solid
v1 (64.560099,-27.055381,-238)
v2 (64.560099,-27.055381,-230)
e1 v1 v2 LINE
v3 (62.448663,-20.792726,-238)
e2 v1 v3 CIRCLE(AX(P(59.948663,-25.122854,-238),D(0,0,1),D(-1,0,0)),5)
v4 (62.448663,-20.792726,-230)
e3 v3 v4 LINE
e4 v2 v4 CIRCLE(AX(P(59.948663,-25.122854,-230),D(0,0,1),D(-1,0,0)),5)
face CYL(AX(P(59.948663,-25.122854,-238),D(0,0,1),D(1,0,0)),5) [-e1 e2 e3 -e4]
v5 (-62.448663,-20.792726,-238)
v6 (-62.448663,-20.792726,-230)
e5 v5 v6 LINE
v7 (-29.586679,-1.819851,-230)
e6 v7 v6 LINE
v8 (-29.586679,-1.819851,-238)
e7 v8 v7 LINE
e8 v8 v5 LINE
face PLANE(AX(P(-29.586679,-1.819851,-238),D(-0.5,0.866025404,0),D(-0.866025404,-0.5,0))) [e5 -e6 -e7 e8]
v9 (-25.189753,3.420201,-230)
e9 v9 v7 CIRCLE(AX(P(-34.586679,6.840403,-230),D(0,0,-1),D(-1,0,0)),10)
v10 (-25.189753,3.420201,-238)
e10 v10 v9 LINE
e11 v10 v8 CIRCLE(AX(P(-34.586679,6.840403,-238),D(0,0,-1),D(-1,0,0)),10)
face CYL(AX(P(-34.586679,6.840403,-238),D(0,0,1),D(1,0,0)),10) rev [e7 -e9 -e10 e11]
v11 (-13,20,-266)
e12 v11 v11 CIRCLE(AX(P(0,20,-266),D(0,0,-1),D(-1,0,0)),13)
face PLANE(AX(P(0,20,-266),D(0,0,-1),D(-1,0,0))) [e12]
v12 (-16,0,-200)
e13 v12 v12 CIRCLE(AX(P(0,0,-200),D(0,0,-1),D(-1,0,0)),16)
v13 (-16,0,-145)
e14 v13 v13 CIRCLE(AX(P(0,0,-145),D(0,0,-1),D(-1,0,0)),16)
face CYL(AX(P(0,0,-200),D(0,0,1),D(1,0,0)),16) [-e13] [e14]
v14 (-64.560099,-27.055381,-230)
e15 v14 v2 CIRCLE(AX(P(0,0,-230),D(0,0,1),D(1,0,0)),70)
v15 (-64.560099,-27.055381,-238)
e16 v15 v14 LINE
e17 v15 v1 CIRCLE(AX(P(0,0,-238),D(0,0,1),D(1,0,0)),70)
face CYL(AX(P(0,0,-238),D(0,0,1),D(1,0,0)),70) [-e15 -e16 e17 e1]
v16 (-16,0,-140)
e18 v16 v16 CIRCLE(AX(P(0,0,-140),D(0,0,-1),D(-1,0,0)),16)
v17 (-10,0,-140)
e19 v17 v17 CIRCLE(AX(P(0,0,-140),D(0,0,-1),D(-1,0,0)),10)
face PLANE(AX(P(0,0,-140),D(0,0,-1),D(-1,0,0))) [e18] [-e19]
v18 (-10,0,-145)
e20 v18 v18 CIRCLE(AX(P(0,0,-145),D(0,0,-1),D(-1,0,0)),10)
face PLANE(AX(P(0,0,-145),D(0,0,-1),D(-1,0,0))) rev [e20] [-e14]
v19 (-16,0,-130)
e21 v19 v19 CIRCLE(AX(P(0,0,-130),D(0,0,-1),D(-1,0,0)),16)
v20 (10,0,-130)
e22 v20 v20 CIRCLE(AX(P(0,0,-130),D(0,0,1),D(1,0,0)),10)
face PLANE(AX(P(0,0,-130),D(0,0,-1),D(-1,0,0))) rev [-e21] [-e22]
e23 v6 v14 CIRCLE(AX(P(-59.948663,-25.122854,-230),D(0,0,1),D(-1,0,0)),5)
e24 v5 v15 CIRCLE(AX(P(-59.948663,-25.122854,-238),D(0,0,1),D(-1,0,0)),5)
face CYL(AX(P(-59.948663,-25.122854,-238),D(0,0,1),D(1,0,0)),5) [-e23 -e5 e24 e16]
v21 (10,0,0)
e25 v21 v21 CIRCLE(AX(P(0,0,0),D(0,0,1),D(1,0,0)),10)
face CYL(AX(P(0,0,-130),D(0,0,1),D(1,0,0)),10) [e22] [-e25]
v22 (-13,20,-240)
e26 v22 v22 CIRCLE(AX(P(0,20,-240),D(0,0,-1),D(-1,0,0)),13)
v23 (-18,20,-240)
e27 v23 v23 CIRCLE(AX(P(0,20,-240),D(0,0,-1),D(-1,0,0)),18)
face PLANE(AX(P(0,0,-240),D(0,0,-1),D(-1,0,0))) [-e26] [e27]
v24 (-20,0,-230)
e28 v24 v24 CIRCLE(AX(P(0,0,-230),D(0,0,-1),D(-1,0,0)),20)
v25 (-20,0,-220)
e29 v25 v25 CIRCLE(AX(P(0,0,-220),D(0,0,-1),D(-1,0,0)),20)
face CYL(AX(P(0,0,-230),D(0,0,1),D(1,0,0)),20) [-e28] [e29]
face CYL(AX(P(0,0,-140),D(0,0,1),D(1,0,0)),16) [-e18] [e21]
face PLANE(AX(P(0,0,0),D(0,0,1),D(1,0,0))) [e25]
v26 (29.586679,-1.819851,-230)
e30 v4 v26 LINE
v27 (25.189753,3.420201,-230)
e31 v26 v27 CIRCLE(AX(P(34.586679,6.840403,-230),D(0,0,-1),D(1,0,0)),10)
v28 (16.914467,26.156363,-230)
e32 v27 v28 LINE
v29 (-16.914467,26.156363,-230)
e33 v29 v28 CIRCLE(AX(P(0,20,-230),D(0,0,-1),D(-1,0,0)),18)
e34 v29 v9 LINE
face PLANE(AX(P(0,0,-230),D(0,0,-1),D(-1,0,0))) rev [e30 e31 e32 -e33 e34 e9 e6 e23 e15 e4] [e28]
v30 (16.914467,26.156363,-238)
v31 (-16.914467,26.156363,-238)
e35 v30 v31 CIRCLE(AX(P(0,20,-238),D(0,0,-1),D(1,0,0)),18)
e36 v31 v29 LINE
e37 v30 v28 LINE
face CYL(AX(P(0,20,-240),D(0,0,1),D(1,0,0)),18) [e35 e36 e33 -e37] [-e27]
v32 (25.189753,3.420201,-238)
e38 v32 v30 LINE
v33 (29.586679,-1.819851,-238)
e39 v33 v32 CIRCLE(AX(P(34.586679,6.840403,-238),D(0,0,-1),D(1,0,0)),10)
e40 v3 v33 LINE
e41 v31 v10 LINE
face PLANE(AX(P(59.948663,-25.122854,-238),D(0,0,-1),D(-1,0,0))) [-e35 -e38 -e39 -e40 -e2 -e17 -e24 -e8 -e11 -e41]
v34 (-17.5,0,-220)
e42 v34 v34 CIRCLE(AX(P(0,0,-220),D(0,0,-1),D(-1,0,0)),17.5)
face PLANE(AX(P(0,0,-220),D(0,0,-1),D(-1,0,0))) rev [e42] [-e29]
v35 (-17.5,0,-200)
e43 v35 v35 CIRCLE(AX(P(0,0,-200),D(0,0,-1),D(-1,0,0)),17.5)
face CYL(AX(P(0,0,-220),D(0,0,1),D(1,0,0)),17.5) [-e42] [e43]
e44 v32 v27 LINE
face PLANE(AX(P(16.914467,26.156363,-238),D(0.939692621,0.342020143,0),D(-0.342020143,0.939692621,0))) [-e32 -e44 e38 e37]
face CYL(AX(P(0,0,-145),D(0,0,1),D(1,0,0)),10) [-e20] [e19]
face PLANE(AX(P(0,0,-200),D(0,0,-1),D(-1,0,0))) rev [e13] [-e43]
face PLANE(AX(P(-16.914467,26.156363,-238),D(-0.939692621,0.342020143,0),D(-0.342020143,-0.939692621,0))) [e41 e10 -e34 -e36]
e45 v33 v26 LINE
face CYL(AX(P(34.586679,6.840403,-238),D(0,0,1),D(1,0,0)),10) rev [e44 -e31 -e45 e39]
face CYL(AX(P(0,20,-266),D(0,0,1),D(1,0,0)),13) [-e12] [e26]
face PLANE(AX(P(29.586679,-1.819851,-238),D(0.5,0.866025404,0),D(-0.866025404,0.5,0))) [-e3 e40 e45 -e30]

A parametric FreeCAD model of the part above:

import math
import FreeCAD as App
import Part
import Sketcher

V = App.Vector
Q = App.Units.Quantity

doc = App.newDocument("Part")
params = doc.addObject("Spreadsheet::Sheet", "Params")
for row, (alias, value) in enumerate([
    ("sketch1_diameter", "20 mm"),
    ("pad1_length", "130 mm"),
    ("sketch2_diameter", "32 mm"),
    ("pad2_length", "10 mm"),
    ("sketch3_diameter", "20 mm"),
    ("pad3_length", "5 mm"),
    ("sketch4_diameter", "32 mm"),
    ("pad4_length", "55 mm"),
    ("sketch5_diameter", "35 mm"),
    ("pad5_length", "20 mm"),
    ("sketch6_diameter", "40 mm"),
    ("pad6_length", "10 mm"),
    ("sketch7_diameter", "36 mm"),
    ("pad7_length", "10 mm"),
    ("sketch8_diameter", "26 mm"),
    ("pad8_length", "26 mm"),
    ("sketch9_radius", "10 mm"),
    ("sketch9_radius2", "5 mm"),
    ("sketch9_radius3", "70 mm"),
    ("sketch9_radius4", "18 mm"),
    ("pad9_length", "8 mm"),
], start=1):
    params.set(f"A{row}", alias)
    params.set(f"B{row}", "=" + value)
    params.setAlias(f"B{row}", alias)

body = doc.addObject("PartDesign::Body", "Body")

# Sketch on XY plane
sketch1 = body.newObject("Sketcher::SketchObject", "Sketch")
sketch1.AttachmentSupport = (doc.getObject("XY_Plane"), [""])
sketch1.MapMode = "FlatFace"
sketch1.addGeometry(Part.Circle(V(0, 0, 0), V(0, 0, 1), 10), False)
sketch1.addConstraint(Sketcher.Constraint("Coincident", 0, 3, -1, 1))
sketch1.addConstraint(Sketcher.Constraint("Diameter", 0, Q("20 mm")))
sketch1.setExpression("Constraints[1]", "Params.sketch1_diameter")
pad1 = body.newObject("PartDesign::Pad", "Pad")
pad1.Profile = sketch1
pad1.setExpression("Length", "Params.pad1_length")
pad1.Reversed = True

# Sketch on XY plane
sketch2 = body.newObject("Sketcher::SketchObject", "Sketch001")
sketch2.AttachmentSupport = (doc.getObject("XY_Plane"), [""])
sketch2.MapMode = "FlatFace"
sketch2.AttachmentOffset = App.Placement(V(0, 0, -130), App.Rotation())
sketch2.addGeometry(Part.Circle(V(0, 0, 0), V(0, 0, 1), 16), False)
sketch2.addConstraint(Sketcher.Constraint("Coincident", 0, 3, -1, 1))
sketch2.addConstraint(Sketcher.Constraint("Diameter", 0, Q("32 mm")))
sketch2.setExpression("Constraints[1]", "Params.sketch2_diameter")
pad2 = body.newObject("PartDesign::Pad", "Pad001")
pad2.Profile = sketch2
pad2.setExpression("Length", "Params.pad2_length")
pad2.Reversed = True

# Sketch on XY plane
sketch3 = body.newObject("Sketcher::SketchObject", "Sketch002")
sketch3.AttachmentSupport = (doc.getObject("XY_Plane"), [""])
sketch3.MapMode = "FlatFace"
sketch3.AttachmentOffset = App.Placement(V(0, 0, -140), App.Rotation())
sketch3.addGeometry(Part.Circle(V(0, 0, 0), V(0, 0, 1), 10), False)
sketch3.addConstraint(Sketcher.Constraint("Coincident", 0, 3, -1, 1))
sketch3.addConstraint(Sketcher.Constraint("Diameter", 0, Q("20 mm")))
sketch3.setExpression("Constraints[1]", "Params.sketch3_diameter")
pad3 = body.newObject("PartDesign::Pad", "Pad002")
pad3.Profile = sketch3
pad3.setExpression("Length", "Params.pad3_length")
pad3.Reversed = True

# Sketch on XY plane
sketch4 = body.newObject("Sketcher::SketchObject", "Sketch003")
sketch4.AttachmentSupport = (doc.getObject("XY_Plane"), [""])
sketch4.MapMode = "FlatFace"
sketch4.AttachmentOffset = App.Placement(V(0, 0, -145), App.Rotation())
sketch4.addGeometry(Part.Circle(V(0, 0, 0), V(0, 0, 1), 16), False)
sketch4.addConstraint(Sketcher.Constraint("Coincident", 0, 3, -1, 1))
sketch4.addConstraint(Sketcher.Constraint("Diameter", 0, Q("32 mm")))
sketch4.setExpression("Constraints[1]", "Params.sketch4_diameter")
pad4 = body.newObject("PartDesign::Pad", "Pad003")
pad4.Profile = sketch4
pad4.setExpression("Length", "Params.pad4_length")
pad4.Reversed = True

# Sketch on XY plane
sketch5 = body.newObject("Sketcher::SketchObject", "Sketch004")
sketch5.AttachmentSupport = (doc.getObject("XY_Plane"), [""])
sketch5.MapMode = "FlatFace"
sketch5.AttachmentOffset = App.Placement(V(0, 0, -200), App.Rotation())
sketch5.addGeometry(Part.Circle(V(0, 0, 0), V(0, 0, 1), 18), False)
sketch5.addConstraint(Sketcher.Constraint("Coincident", 0, 3, -1, 1))
sketch5.addConstraint(Sketcher.Constraint("Diameter", 0, Q("35 mm")))
sketch5.setExpression("Constraints[1]", "Params.sketch5_diameter")
pad5 = body.newObject("PartDesign::Pad", "Pad004")
pad5.Profile = sketch5
pad5.setExpression("Length", "Params.pad5_length")
pad5.Reversed = True

# Sketch on XY plane
sketch6 = body.newObject("Sketcher::SketchObject", "Sketch005")
sketch6.AttachmentSupport = (doc.getObject("XY_Plane"), [""])
sketch6.MapMode = "FlatFace"
sketch6.AttachmentOffset = App.Placement(V(0, 0, -220), App.Rotation())
sketch6.addGeometry(Part.Circle(V(0, 0, 0), V(0, 0, 1), 20), False)
sketch6.addConstraint(Sketcher.Constraint("Coincident", 0, 3, -1, 1))
sketch6.addConstraint(Sketcher.Constraint("Diameter", 0, Q("40 mm")))
sketch6.setExpression("Constraints[1]", "Params.sketch6_diameter")
pad6 = body.newObject("PartDesign::Pad", "Pad005")
pad6.Profile = sketch6
pad6.setExpression("Length", "Params.pad6_length")
pad6.Reversed = True

# Sketch on XY plane
sketch7 = body.newObject("Sketcher::SketchObject", "Sketch006")
sketch7.AttachmentSupport = (doc.getObject("XY_Plane"), [""])
sketch7.MapMode = "FlatFace"
sketch7.AttachmentOffset = App.Placement(V(0, 0, -230), App.Rotation())
sketch7.addGeometry(Part.Circle(V(0, 20, 0), V(0, 0, 1), 18), False)
sketch7.addConstraint(Sketcher.Constraint("PointOnObject", 0, 3, -2))
sketch7.addConstraint(Sketcher.Constraint("Diameter", 0, Q("36 mm")))
sketch7.addConstraint(Sketcher.Constraint("DistanceY", -1, 1, 0, 3, Q("20 mm")))
sketch7.setExpression("Constraints[1]", "Params.sketch7_diameter")
pad7 = body.newObject("PartDesign::Pad", "Pad006")
pad7.Profile = sketch7
pad7.setExpression("Length", "Params.pad7_length")
pad7.Reversed = True

# Sketch on XY plane
sketch8 = body.newObject("Sketcher::SketchObject", "Sketch007")
sketch8.AttachmentSupport = (doc.getObject("XY_Plane"), [""])
sketch8.MapMode = "FlatFace"
sketch8.AttachmentOffset = App.Placement(V(0, 0, -240), App.Rotation())
sketch8.addGeometry(Part.Circle(V(0, 20, 0), V(0, 0, 1), 13), False)
sketch8.addConstraint(Sketcher.Constraint("PointOnObject", 0, 3, -2))
sketch8.addConstraint(Sketcher.Constraint("Diameter", 0, Q("26 mm")))
sketch8.addConstraint(Sketcher.Constraint("DistanceY", -1, 1, 0, 3, Q("20 mm")))
sketch8.setExpression("Constraints[1]", "Params.sketch8_diameter")
pad8 = body.newObject("PartDesign::Pad", "Pad007")
pad8.Profile = sketch8
pad8.setExpression("Length", "Params.pad8_length")
pad8.Reversed = True

# Sketch on XY plane
sketch9 = body.newObject("Sketcher::SketchObject", "Sketch008")
sketch9.AttachmentSupport = (doc.getObject("XY_Plane"), [""])
sketch9.MapMode = "FlatFace"
sketch9.AttachmentOffset = App.Placement(V(0, 0, -230), App.Rotation())
sketch9.addGeometry(Part.LineSegment(V(-17, 26, 0), V(-25, 3, 0)), False)
sketch9.addGeometry(Part.ArcOfCircle(Part.Circle(V(-35, 7, 0), V(0, 0, 1), 10), math.radians(-60), math.radians(-20)), False)
sketch9.addGeometry(Part.LineSegment(V(-30, -2, 0), V(-62, -21, 0)), False)
sketch9.addGeometry(Part.ArcOfCircle(Part.Circle(V(-60, -25, 0), V(0, 0, 1), 5), math.radians(120), math.radians(203)), False)
sketch9.addGeometry(Part.ArcOfCircle(Part.Circle(V(0, 0, 0), V(0, 0, 1), 70), math.radians(-157), math.radians(-23)), False)
sketch9.addGeometry(Part.ArcOfCircle(Part.Circle(V(60, -25, 0), V(0, 0, 1), 5), math.radians(-23), math.radians(60)), False)
sketch9.addGeometry(Part.LineSegment(V(62, -21, 0), V(30, -2, 0)), False)
sketch9.addGeometry(Part.ArcOfCircle(Part.Circle(V(35, 7, 0), V(0, 0, 1), 10), math.radians(-160), math.radians(-120)), False)
sketch9.addGeometry(Part.LineSegment(V(25, 3, 0), V(17, 26, 0)), False)
sketch9.addGeometry(Part.ArcOfCircle(Part.Circle(V(0, 20, 0), V(0, 0, 1), 18), math.radians(160), math.radians(380)), False)
sketch9.addConstraint(Sketcher.Constraint("Tangent", 0, 2, 1, 2))
sketch9.addConstraint(Sketcher.Constraint("Tangent", 1, 1, 2, 1))
sketch9.addConstraint(Sketcher.Constraint("Tangent", 2, 2, 3, 1))
sketch9.addConstraint(Sketcher.Constraint("Tangent", 3, 2, 4, 1))
sketch9.addConstraint(Sketcher.Constraint("Tangent", 4, 2, 5, 1))
sketch9.addConstraint(Sketcher.Constraint("Tangent", 5, 2, 6, 1))
sketch9.addConstraint(Sketcher.Constraint("Tangent", 6, 2, 7, 2))
sketch9.addConstraint(Sketcher.Constraint("Tangent", 7, 1, 8, 1))
sketch9.addConstraint(Sketcher.Constraint("Tangent", 8, 2, 9, 2))
sketch9.addConstraint(Sketcher.Constraint("Tangent", 9, 1, 0, 1))
sketch9.addConstraint(Sketcher.Constraint("Coincident", 4, 3, -1, 1))
sketch9.addConstraint(Sketcher.Constraint("Equal", 3, 5))
sketch9.addConstraint(Sketcher.Constraint("Equal", 1, 7))
sketch9.addConstraint(Sketcher.Constraint("Symmetric", 1, 3, 7, 3, -2))
sketch9.addConstraint(Sketcher.Constraint("PointOnObject", 9, 3, -2))
sketch9.addConstraint(Sketcher.Constraint("Horizontal", 3, 3, 5, 3))
sketch9.addConstraint(Sketcher.Constraint("Radius", 1, Q("10 mm")))
sketch9.addConstraint(Sketcher.Constraint("Radius", 3, Q("5 mm")))
sketch9.addConstraint(Sketcher.Constraint("Radius", 4, Q("70 mm")))
sketch9.addConstraint(Sketcher.Constraint("Radius", 9, Q("18 mm")))
sketch9.addConstraint(Sketcher.Constraint("Angle", 0, Q("-110 deg")))
sketch9.addConstraint(Sketcher.Constraint("Angle", 2, Q("-150 deg")))
sketch9.addConstraint(Sketcher.Constraint("DistanceY", -1, 1, 9, 3, Q("20 mm")))
sketch9.addConstraint(Sketcher.Constraint("DistanceY", -1, 1, 0, 2, Q("3.420201 mm")))
sketch9.setExpression("Constraints[16]", "Params.sketch9_radius")
sketch9.setExpression("Constraints[17]", "Params.sketch9_radius2")
sketch9.setExpression("Constraints[18]", "Params.sketch9_radius3")
sketch9.setExpression("Constraints[19]", "Params.sketch9_radius4")
pad9 = body.newObject("PartDesign::Pad", "Pad008")
pad9.Profile = sketch9
pad9.setExpression("Length", "Params.pad9_length")
pad9.Reversed = True

doc.recompute()
